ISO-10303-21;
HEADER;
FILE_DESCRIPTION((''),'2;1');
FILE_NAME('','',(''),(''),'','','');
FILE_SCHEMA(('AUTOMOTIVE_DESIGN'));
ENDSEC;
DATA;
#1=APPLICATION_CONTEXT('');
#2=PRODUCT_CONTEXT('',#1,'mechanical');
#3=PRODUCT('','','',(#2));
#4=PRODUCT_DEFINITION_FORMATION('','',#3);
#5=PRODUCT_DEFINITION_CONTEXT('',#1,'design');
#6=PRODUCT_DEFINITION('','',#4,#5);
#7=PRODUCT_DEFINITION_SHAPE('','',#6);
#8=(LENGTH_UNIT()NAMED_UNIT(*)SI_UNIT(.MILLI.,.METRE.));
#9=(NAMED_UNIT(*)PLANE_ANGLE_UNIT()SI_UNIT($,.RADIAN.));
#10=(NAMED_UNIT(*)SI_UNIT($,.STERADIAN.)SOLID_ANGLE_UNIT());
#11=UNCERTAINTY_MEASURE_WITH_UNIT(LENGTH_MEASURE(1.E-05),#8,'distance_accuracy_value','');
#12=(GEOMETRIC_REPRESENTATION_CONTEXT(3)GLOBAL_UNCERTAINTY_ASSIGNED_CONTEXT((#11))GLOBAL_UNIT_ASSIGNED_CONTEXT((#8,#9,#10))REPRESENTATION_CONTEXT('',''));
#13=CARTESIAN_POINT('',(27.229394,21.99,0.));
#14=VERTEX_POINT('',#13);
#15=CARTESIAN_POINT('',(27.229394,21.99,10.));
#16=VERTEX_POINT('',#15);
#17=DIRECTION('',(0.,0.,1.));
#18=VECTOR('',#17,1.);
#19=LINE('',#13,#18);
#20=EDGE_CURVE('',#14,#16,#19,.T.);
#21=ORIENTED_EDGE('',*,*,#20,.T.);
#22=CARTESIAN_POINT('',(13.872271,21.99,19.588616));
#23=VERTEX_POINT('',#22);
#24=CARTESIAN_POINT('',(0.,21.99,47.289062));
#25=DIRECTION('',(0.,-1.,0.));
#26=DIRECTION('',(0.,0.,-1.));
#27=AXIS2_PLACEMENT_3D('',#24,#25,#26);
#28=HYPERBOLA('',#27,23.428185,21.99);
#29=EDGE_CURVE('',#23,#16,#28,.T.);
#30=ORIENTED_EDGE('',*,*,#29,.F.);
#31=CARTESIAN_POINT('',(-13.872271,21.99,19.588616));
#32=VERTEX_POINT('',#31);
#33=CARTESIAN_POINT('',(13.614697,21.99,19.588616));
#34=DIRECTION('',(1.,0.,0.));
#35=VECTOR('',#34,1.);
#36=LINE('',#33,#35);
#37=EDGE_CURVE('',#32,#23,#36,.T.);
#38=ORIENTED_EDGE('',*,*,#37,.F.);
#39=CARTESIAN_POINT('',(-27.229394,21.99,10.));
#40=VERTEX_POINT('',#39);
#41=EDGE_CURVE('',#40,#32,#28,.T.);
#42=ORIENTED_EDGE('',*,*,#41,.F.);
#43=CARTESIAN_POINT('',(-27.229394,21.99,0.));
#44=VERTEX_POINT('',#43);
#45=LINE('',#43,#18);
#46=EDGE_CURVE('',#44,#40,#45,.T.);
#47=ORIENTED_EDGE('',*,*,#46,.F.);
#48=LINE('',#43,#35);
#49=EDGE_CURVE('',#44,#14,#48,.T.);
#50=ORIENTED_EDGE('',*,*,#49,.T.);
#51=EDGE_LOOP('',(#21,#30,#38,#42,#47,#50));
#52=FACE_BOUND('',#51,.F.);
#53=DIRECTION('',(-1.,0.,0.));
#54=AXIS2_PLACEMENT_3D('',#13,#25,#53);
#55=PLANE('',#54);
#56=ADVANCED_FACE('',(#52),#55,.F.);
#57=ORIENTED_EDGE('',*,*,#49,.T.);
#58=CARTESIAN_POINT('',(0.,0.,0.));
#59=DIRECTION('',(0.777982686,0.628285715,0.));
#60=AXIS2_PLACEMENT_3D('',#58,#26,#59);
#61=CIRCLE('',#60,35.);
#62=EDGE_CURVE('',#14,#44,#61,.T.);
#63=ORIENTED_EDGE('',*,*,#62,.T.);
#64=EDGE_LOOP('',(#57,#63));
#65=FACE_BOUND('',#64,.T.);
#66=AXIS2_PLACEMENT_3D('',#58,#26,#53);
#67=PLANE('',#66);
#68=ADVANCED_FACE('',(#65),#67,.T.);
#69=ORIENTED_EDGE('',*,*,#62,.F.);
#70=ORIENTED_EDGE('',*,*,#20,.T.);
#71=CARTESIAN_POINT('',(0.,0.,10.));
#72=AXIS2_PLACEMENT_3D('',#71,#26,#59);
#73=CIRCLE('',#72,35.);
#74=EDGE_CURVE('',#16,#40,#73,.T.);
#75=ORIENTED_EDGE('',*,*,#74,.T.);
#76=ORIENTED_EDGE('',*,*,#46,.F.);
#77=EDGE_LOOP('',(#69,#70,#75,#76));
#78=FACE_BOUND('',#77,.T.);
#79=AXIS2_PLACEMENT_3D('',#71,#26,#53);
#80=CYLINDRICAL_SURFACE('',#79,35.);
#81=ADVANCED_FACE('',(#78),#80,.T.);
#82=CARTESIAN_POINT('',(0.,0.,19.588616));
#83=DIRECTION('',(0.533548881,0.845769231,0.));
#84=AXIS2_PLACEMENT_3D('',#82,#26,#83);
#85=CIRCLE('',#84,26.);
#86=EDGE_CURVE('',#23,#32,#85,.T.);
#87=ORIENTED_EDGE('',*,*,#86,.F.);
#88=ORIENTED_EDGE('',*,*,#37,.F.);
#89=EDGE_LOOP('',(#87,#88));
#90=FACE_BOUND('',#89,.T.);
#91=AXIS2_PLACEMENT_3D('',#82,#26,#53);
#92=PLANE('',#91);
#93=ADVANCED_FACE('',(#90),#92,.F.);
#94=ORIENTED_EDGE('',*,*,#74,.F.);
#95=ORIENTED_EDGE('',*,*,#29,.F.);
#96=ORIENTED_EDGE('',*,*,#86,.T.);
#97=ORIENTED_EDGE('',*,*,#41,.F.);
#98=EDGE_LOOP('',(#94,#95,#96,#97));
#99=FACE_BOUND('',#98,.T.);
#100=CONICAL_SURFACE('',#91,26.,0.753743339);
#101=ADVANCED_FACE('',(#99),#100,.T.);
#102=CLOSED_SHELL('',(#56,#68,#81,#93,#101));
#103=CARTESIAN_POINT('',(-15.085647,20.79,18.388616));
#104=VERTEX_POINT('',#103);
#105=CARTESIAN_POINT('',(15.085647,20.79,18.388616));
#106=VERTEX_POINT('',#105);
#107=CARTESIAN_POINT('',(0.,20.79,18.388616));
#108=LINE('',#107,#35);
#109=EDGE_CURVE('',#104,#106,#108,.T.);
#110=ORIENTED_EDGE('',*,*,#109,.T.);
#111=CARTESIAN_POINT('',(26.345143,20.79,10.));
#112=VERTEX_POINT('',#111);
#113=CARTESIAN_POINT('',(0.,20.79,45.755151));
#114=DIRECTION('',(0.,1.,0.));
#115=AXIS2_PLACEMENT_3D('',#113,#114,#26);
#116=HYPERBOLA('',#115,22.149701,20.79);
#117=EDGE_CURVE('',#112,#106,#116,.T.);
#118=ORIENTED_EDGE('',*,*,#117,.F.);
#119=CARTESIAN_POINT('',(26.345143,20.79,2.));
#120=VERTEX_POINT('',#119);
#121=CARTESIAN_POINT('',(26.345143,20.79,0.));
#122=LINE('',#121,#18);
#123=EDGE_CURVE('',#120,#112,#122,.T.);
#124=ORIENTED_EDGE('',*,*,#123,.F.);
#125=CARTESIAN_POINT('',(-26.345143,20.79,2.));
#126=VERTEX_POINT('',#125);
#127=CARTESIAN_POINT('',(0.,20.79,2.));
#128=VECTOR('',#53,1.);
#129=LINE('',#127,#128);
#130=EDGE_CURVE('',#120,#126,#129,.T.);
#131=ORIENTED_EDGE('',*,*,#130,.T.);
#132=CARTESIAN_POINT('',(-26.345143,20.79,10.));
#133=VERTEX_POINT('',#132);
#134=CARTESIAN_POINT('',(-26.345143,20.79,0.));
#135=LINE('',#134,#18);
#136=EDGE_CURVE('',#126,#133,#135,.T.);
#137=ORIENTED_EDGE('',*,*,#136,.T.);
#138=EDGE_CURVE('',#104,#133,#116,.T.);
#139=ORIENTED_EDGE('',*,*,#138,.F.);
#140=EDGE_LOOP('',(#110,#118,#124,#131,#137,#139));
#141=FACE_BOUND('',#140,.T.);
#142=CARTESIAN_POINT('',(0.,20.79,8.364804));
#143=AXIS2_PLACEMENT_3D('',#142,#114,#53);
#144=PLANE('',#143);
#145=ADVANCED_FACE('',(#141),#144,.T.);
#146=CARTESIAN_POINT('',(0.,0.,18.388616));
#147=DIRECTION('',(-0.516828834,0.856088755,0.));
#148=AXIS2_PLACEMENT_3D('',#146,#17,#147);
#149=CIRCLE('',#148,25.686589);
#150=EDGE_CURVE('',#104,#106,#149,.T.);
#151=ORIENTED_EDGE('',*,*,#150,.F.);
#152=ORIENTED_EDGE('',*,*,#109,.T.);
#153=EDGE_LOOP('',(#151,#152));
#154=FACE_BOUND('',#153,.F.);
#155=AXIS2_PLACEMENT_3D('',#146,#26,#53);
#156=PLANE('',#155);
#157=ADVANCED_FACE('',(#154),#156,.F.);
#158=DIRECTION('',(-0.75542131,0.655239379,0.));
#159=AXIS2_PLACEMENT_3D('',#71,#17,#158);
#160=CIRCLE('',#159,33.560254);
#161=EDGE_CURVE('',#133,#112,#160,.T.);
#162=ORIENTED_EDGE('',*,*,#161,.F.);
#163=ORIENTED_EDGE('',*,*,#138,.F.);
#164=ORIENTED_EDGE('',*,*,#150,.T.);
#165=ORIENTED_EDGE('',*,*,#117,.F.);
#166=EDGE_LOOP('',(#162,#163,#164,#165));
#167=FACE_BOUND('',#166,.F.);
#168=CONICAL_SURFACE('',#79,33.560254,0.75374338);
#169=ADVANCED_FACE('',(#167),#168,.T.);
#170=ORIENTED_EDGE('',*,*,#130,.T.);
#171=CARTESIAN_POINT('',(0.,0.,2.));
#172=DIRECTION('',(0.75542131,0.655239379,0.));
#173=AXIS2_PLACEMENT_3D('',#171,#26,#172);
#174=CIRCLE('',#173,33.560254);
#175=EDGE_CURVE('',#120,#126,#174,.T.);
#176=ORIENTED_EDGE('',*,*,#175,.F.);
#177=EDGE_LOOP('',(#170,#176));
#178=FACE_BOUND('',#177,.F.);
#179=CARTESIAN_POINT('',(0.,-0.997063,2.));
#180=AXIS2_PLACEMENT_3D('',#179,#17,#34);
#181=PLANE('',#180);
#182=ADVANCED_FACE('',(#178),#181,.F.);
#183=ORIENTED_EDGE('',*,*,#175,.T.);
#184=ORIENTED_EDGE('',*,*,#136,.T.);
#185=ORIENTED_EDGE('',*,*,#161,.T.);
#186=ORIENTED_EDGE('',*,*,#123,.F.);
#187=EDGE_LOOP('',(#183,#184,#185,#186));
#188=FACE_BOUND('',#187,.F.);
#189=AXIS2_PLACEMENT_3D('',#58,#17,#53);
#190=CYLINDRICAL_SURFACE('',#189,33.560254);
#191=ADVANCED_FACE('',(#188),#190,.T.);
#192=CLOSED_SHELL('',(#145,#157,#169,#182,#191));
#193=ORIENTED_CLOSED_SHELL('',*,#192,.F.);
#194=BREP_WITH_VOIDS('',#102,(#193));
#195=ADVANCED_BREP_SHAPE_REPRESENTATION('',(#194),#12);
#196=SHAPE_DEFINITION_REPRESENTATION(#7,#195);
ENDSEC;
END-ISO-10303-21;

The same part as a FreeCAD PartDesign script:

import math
import FreeCAD as App
import Part
import Sketcher

doc = App.newDocument("Part")
body = doc.addObject("PartDesign::Body", "Body")

sketch1 = body.newObject("Sketcher::SketchObject", "Sketch")
sketch1.AttachmentSupport = (doc.getObject("XY_Plane"), [""])
sketch1.MapMode = "FlatFace"
sketch1.addGeometry([
    Part.LineSegment(App.Vector(27, 22, 0), App.Vector(-27, 22, 0)),
    Part.ArcOfCircle(Part.Circle(App.Vector(0, 0, 0), App.Vector(0, 0, 1), 35), math.radians(141), math.radians(399)),
], False)
sketch1.addConstraint([
    Sketcher.Constraint("Coincident", 0, 1, 1, 2),
    Sketcher.Constraint("Coincident", 1, 1, 0, 2),
    Sketcher.Constraint("Horizontal", 0),
    Sketcher.Constraint("Coincident", 1, 3, -1, 1),
    Sketcher.Constraint("Radius", 1, 35.0),
    Sketcher.Constraint("DistanceY", -1, 1, 0, 1, 21.99),
])
pad1 = body.newObject("PartDesign::Pad", "Pad")
pad1.Profile = sketch1
pad1.Length = 2

sketch2 = body.newObject("Sketcher::SketchObject", "Sketch001")
sketch2.AttachmentSupport = (doc.getObject("XZ_Plane"), [""])
sketch2.MapMode = "FlatFace"
sketch2.addGeometry([
    Part.LineSegment(App.Vector(-35, 0, 0), App.Vector(-33.6, 0, 0)),
    Part.LineSegment(App.Vector(-33.6, 0, 0), App.Vector(-33.6, 10, 0)),
    Part.LineSegment(App.Vector(-33.6, 10, 0), App.Vector(-25.7, 18.4, 0)),
    Part.LineSegment(App.Vector(-25.7, 18.4, 0), App.Vector(0, 18.4, 0)),
    Part.LineSegment(App.Vector(0, 18.4, 0), App.Vector(0, 19.6, 0)),
    Part.LineSegment(App.Vector(0, 19.6, 0), App.Vector(-26, 19.6, 0)),
    Part.LineSegment(App.Vector(-26, 19.6, 0), App.Vector(-35, 10, 0)),
    Part.LineSegment(App.Vector(-35, 10, 0), App.Vector(-35, 0, 0)),
], False)
sketch2.addConstraint([
    Sketcher.Constraint("Coincident", 0, 2, 1, 1),
    Sketcher.Constraint("Coincident", 1, 2, 2, 1),
    Sketcher.Constraint("Coincident", 2, 2, 3, 1),
    Sketcher.Constraint("Coincident", 3, 2, 4, 1),
    Sketcher.Constraint("Coincident", 4, 2, 5, 1),
    Sketcher.Constraint("Coincident", 5, 2, 6, 1),
    Sketcher.Constraint("Coincident", 6, 2, 7, 1),
    Sketcher.Constraint("Coincident", 7, 2, 0, 1),
    Sketcher.Constraint("Horizontal", 0),
    Sketcher.Constraint("Vertical", 1),
    Sketcher.Constraint("Horizontal", 3),
    Sketcher.Constraint("Vertical", 4),
    Sketcher.Constraint("Horizontal", 5),
    Sketcher.Constraint("Vertical", 7),
    Sketcher.Constraint("PointOnObject", 0, 2, -1),
    Sketcher.Constraint("PointOnObject", 3, 2, -2),
    Sketcher.Constraint("Parallel", 2, 6),
    Sketcher.Constraint("Horizontal", 1, 2, 6, 2),
    Sketcher.Constraint("DistanceX", 5, 2, 5, 1, 26.0),
    Sketcher.Constraint("DistanceY", 1, 1, 1, 2, 10.0),
    Sketcher.Constraint("DistanceY", 4, 1, 4, 2, 1.2),
    Sketcher.Constraint("DistanceX", 6, 2, -1, 1, 35.0),
    Sketcher.Constraint("DistanceX", 3, 1, 3, 2, 25.686589),
    Sketcher.Constraint("DistanceX", 0, 1, 0, 2, 1.439746),
])
revolution = body.newObject("PartDesign::Revolution", "Revolution")
revolution.Profile = sketch2
revolution.ReferenceAxis = (sketch2, ["V_Axis"])
revolution.Angle = 360

sketch3 = body.newObject("Sketcher::SketchObject", "Sketch002")
sketch3.AttachmentSupport = (doc.getObject("XY_Plane"), [""])
sketch3.MapMode = "FlatFace"
sketch3.addGeometry([
    Part.LineSegment(App.Vector(27, 22, 0), App.Vector(-27, 22, 0)),
    Part.LineSegment(App.Vector(-27, 22, 0), App.Vector(-27, 37, 0)),
    Part.LineSegment(App.Vector(-27, 37, 0), App.Vector(27, 37, 0)),
    Part.LineSegment(App.Vector(27, 37, 0), App.Vector(27, 22, 0)),
], False)
sketch3.addConstraint([
    Sketcher.Constraint("Coincident", 0, 2, 1, 1),
    Sketcher.Constraint("Coincident", 1, 2, 2, 1),
    Sketcher.Constraint("Coincident", 2, 2, 3, 1),
    Sketcher.Constraint("Coincident", 3, 2, 0, 1),
    Sketcher.Constraint("Horizontal", 0),
    Sketcher.Constraint("Vertical", 1),
    Sketcher.Constraint("Horizontal", 2),
    Sketcher.Constraint("Vertical", 3),
    Sketcher.Constraint("DistanceY", -1, 1, 0, 2, 21.99),
    Sketcher.Constraint("DistanceX", 0, 2, 0, 1, 54.458788),
    Sketcher.Constraint("DistanceY", 1, 1, 1, 2, 15.249455),
    Sketcher.Constraint("DistanceX", 0, 2, -1, 1, 27.229394),
])
pocket1 = body.newObject("PartDesign::Pocket", "Pocket")
pocket1.Profile = sketch3
pocket1.Type = "ThroughAll"
pocket1.Reversed = True

sketch4 = body.newObject("Sketcher::SketchObject", "Sketch003")
sketch4.AttachmentSupport = (doc.getObject("XZ_Plane"), [""])
sketch4.MapMode = "FlatFace"
sketch4.AttachmentOffset = App.Placement(App.Vector(0, 0, -21.99), App.Rotation())
sketch4.addGeometry([
    Part.LineSegment(App.Vector(-14, 20, 0), App.Vector(14, 20, 0)),
    Part.LineSegment(App.Vector(14, 20, 0), App.Vector(27, 10, 0)),
    Part.LineSegment(App.Vector(27, 10, 0), App.Vector(27, 0, 0)),
    Part.LineSegment(App.Vector(27, 0, 0), App.Vector(-27, 0, 0)),
    Part.LineSegment(App.Vector(-27, 0, 0), App.Vector(-27, 10, 0)),
    Part.LineSegment(App.Vector(-27, 10, 0), App.Vector(-14, 20, 0)),
], False)
sketch4.addConstraint([
    Sketcher.Constraint("Coincident", 0, 2, 1, 1),
    Sketcher.Constraint("Coincident", 1, 2, 2, 1),
    Sketcher.Constraint("Coincident", 2, 2, 3, 1),
    Sketcher.Constraint("Coincident", 3, 2, 4, 1),
    Sketcher.Constraint("Coincident", 4, 2, 5, 1),
    Sketcher.Constraint("Coincident", 5, 2, 0, 1),
    Sketcher.Constraint("Horizontal", 0),
    Sketcher.Constraint("Vertical", 2),
    Sketcher.Constraint("Horizontal", 3),
    Sketcher.Constraint("Vertical", 4),
    Sketcher.Constraint("Symmetric", 2, 2, 3, 2, -1, 1),
    Sketcher.Constraint("Horizontal", 1, 2, 4, 2),
    Sketcher.Constraint("Equal", 1, 5),
    Sketcher.Constraint("DistanceY", 2, 2, 2, 1, 10.0),
    Sketcher.Constraint("DistanceX", 0, 1, 0, 2, 27.744542),
    Sketcher.Constraint("DistanceX", 3, 2, 3, 1, 54.458788),
    Sketcher.Constraint("Distance", 1, 16.442454),
])
pad2 = body.newObject("PartDesign::Pad", "Pad001")
pad2.Profile = sketch4
pad2.Length = 1.2

doc.recompute()
